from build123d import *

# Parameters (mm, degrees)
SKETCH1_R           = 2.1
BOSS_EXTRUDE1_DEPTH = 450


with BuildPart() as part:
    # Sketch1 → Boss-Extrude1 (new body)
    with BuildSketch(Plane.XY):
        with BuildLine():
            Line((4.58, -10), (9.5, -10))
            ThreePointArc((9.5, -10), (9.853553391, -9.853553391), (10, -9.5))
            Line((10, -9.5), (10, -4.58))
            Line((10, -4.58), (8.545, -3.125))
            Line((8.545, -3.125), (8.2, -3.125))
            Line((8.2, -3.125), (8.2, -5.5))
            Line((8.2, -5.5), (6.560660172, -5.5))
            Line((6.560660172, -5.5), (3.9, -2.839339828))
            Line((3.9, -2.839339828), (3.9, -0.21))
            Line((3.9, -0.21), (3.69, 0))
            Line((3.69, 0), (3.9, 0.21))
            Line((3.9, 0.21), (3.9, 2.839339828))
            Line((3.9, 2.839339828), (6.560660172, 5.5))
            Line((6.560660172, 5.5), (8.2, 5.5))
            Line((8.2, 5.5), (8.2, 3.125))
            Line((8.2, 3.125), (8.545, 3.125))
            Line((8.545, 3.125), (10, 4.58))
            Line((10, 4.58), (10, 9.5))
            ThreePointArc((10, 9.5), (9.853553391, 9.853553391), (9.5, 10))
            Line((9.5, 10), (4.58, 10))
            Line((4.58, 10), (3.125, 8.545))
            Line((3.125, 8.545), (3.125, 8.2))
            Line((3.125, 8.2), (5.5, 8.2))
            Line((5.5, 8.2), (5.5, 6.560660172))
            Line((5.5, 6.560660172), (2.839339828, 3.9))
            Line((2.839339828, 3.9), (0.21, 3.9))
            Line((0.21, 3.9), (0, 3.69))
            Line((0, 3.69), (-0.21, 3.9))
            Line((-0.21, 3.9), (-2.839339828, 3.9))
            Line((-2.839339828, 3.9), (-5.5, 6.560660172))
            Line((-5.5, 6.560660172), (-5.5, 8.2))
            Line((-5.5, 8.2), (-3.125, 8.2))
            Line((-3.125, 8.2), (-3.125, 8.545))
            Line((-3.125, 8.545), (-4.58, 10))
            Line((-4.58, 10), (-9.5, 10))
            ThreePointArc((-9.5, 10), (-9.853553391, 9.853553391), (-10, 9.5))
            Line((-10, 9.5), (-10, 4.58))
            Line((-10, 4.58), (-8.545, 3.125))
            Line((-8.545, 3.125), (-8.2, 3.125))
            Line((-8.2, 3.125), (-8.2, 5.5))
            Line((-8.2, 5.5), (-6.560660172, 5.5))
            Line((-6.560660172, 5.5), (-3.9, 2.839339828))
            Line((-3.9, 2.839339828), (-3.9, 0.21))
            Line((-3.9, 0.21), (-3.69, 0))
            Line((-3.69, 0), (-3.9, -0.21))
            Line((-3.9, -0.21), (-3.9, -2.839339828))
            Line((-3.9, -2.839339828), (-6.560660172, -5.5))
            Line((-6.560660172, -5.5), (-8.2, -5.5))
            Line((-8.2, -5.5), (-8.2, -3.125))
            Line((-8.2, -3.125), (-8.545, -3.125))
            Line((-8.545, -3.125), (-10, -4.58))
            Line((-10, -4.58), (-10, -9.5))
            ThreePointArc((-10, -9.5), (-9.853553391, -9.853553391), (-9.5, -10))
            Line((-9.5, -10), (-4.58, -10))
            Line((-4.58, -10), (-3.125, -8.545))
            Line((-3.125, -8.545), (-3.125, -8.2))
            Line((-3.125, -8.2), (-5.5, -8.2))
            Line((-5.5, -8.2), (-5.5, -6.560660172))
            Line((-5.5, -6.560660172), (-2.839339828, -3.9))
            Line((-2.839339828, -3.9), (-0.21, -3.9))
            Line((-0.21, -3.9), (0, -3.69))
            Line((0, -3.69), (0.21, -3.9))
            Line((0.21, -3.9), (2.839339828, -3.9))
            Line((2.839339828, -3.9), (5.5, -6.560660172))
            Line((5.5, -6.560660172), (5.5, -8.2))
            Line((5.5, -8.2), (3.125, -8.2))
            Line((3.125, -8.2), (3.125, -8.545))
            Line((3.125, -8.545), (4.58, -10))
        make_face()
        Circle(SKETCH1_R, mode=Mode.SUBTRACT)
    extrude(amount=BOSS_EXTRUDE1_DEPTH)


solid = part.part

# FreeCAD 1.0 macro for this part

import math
import FreeCAD as App
import Part
import Sketcher

V = App.Vector
Q = App.Units.Quantity

doc = App.newDocument("Part")
body = doc.addObject("PartDesign::Body", "Body")

# Sketch on XY plane
sketch1 = body.newObject("Sketcher::SketchObject", "Sketch")
sketch1.AttachmentSupport = (doc.getObject("XY_Plane"), [""])
sketch1.MapMode = "FlatFace"
sketch1.addGeometry(Part.LineSegment(V(4.58, -10, 0), V(9.5, -10, 0)), False)
sketch1.addGeometry(Part.ArcOfCircle(Part.Circle(V(9.5, -9.5, 0), V(0, 0, 1), 0.5), math.radians(-90), math.radians(0)), False)
sketch1.addGeometry(Part.LineSegment(V(10, -9.5, 0), V(10, -4.58, 0)), False)
sketch1.addGeometry(Part.LineSegment(V(10, -4.58, 0), V(8.54, -3.12, 0)), False)
sketch1.addGeometry(Part.LineSegment(V(8.54, -3.12, 0), V(8.2, -3.12, 0)), False)
sketch1.addGeometry(Part.LineSegment(V(8.2, -3.12, 0), V(8.2, -5.5, 0)), False)
sketch1.addGeometry(Part.LineSegment(V(8.2, -5.5, 0), V(6.56, -5.5, 0)), False)
sketch1.addGeometry(Part.LineSegment(V(6.56, -5.5, 0), V(3.9, -2.84, 0)), False)
sketch1.addGeometry(Part.LineSegment(V(3.9, -2.84, 0), V(3.9, -0.21, 0)), False)
sketch1.addGeometry(Part.LineSegment(V(3.9, -0.21, 0), V(3.69, 0, 0)), False)
sketch1.addGeometry(Part.LineSegment(V(3.69, 0, 0), V(3.9, 0.21, 0)), False)
sketch1.addGeometry(Part.LineSegment(V(3.9, 0.21, 0), V(3.9, 2.84, 0)), False)
sketch1.addGeometry(Part.LineSegment(V(3.9, 2.84, 0), V(6.56, 5.5, 0)), False)
sketch1.addGeometry(Part.LineSegment(V(6.56, 5.5, 0), V(8.2, 5.5, 0)), False)
sketch1.addGeometry(Part.LineSegment(V(8.2, 5.5, 0), V(8.2, 3.12, 0)), False)
sketch1.addGeometry(Part.LineSegment(V(8.2, 3.12, 0), V(8.54, 3.12, 0)), False)
sketch1.addGeometry(Part.LineSegment(V(8.54, 3.12, 0), V(10, 4.58, 0)), False)
sketch1.addGeometry(Part.LineSegment(V(10, 4.58, 0), V(10, 9.5, 0)), False)
sketch1.addGeometry(Part.ArcOfCircle(Part.Circle(V(9.5, 9.5, 0), V(0, 0, 1), 0.5), math.radians(0), math.radians(90)), False)
sketch1.addGeometry(Part.LineSegment(V(9.5, 10, 0), V(4.58, 10, 0)), False)
sketch1.addGeometry(Part.LineSegment(V(4.58, 10, 0), V(3.12, 8.54, 0)), False)
sketch1.addGeometry(Part.LineSegment(V(3.12, 8.54, 0), V(3.12, 8.2, 0)), False)
sketch1.addGeometry(Part.LineSegment(V(3.12, 8.2, 0), V(5.5, 8.2, 0)), False)
sketch1.addGeometry(Part.LineSegment(V(5.5, 8.2, 0), V(5.5, 6.56, 0)), False)
sketch1.addGeometry(Part.LineSegment(V(5.5, 6.56, 0), V(2.84, 3.9, 0)), False)
sketch1.addGeometry(Part.LineSegment(V(2.84, 3.9, 0), V(0.21, 3.9, 0)), False)
sketch1.addGeometry(Part.LineSegment(V(0.21, 3.9, 0), V(0, 3.69, 0)), False)
sketch1.addGeometry(Part.LineSegment(V(0, 3.69, 0), V(-0.21, 3.9, 0)), False)
sketch1.addGeometry(Part.LineSegment(V(-0.21, 3.9, 0), V(-2.84, 3.9, 0)), False)
sketch1.addGeometry(Part.LineSegment(V(-2.84, 3.9, 0), V(-5.5, 6.56, 0)), False)
sketch1.addGeometry(Part.LineSegment(V(-5.5, 6.56, 0), V(-5.5, 8.2, 0)), False)
sketch1.addGeometry(Part.LineSegment(V(-5.5, 8.2, 0), V(-3.12, 8.2, 0)), False)
sketch1.addGeometry(Part.LineSegment(V(-3.12, 8.2, 0), V(-3.12, 8.54, 0)), False)
sketch1.addGeometry(Part.LineSegment(V(-3.12, 8.54, 0), V(-4.58, 10, 0)), False)
sketch1.addGeometry(Part.LineSegment(V(-4.58, 10, 0), V(-9.5, 10, 0)), False)
sketch1.addGeometry(Part.ArcOfCircle(Part.Circle(V(-9.5, 9.5, 0), V(0, 0, 1), 0.5), math.radians(90), math.radians(180)), False)
sketch1.addGeometry(Part.LineSegment(V(-10, 9.5, 0), V(-10, 4.58, 0)), False)
sketch1.addGeometry(Part.LineSegment(V(-10, 4.58, 0), V(-8.54, 3.12, 0)), False)
sketch1.addGeometry(Part.LineSegment(V(-8.54, 3.12, 0), V(-8.2, 3.12, 0)), False)
sketch1.addGeometry(Part.LineSegment(V(-8.2, 3.12, 0), V(-8.2, 5.5, 0)), False)
sketch1.addGeometry(Part.LineSegment(V(-8.2, 5.5, 0), V(-6.56, 5.5, 0)), False)
sketch1.addGeometry(Part.LineSegment(V(-6.56, 5.5, 0), V(-3.9, 2.84, 0)), False)
sketch1.addGeometry(Part.LineSegment(V(-3.9, 2.84, 0), V(-3.9, 0.21, 0)), False)
sketch1.addGeometry(Part.LineSegment(V(-3.9, 0.21, 0), V(-3.69, 0, 0)), False)
sketch1.addGeometry(Part.LineSegment(V(-3.69, 0, 0), V(-3.9, -0.21, 0)), False)
sketch1.addGeometry(Part.LineSegment(V(-3.9, -0.21, 0), V(-3.9, -2.84, 0)), False)
sketch1.addGeometry(Part.LineSegment(V(-3.9, -2.84, 0), V(-6.56, -5.5, 0)), False)
sketch1.addGeometry(Part.LineSegment(V(-6.56, -5.5, 0), V(-8.2, -5.5, 0)), False)
sketch1.addGeometry(Part.LineSegment(V(-8.2, -5.5, 0), V(-8.2, -3.12, 0)), False)
sketch1.addGeometry(Part.LineSegment(V(-8.2, -3.12, 0), V(-8.54, -3.12, 0)), False)
sketch1.addGeometry(Part.LineSegment(V(-8.54, -3.12, 0), V(-10, -4.58, 0)), False)
sketch1.addGeometry(Part.LineSegment(V(-10, -4.58, 0), V(-10, -9.5, 0)), False)
sketch1.addGeometry(Part.ArcOfCircle(Part.Circle(V(-9.5, -9.5, 0), V(0, 0, 1), 0.5), math.radians(180), math.radians(270)), False)
sketch1.addGeometry(Part.LineSegment(V(-9.5, -10, 0), V(-4.58, -10, 0)), False)
sketch1.addGeometry(Part.LineSegment(V(-4.58, -10, 0), V(-3.12, -8.54, 0)), False)
sketch1.addGeometry(Part.LineSegment(V(-3.12, -8.54, 0), V(-3.12, -8.2, 0)), False)
sketch1.addGeometry(Part.LineSegment(V(-3.12, -8.2, 0), V(-5.5, -8.2, 0)), False)
sketch1.addGeometry(Part.LineSegment(V(-5.5, -8.2, 0), V(-5.5, -6.56, 0)), False)
sketch1.addGeometry(Part.LineSegment(V(-5.5, -6.56, 0), V(-2.84, -3.9, 0)), False)
sketch1.addGeometry(Part.LineSegment(V(-2.84, -3.9, 0), V(-0.21, -3.9, 0)), False)
sketch1.addGeometry(Part.LineSegment(V(-0.21, -3.9, 0), V(0, -3.69, 0)), False)
sketch1.addGeometry(Part.LineSegment(V(0, -3.69, 0), V(0.21, -3.9, 0)), False)
sketch1.addGeometry(Part.LineSegment(V(0.21, -3.9, 0), V(2.84, -3.9, 0)), False)
sketch1.addGeometry(Part.LineSegment(V(2.84, -3.9, 0), V(5.5, -6.56, 0)), False)
sketch1.addGeometry(Part.LineSegment(V(5.5, -6.56, 0), V(5.5, -8.2, 0)), False)
sketch1.addGeometry(Part.LineSegment(V(5.5, -8.2, 0), V(3.12, -8.2, 0)), False)
sketch1.addGeometry(Part.LineSegment(V(3.12, -8.2, 0), V(3.12, -8.54, 0)), False)
sketch1.addGeometry(Part.LineSegment(V(3.12, -8.54, 0), V(4.58, -10, 0)), False)
sketch1.addGeometry(Part.Circle(V(0, 0, 0), V(0, 0, 1), 2.1), False)
sketch1.addConstraint(Sketcher.Constraint("Tangent", 0, 2, 1, 1))
sketch1.addConstraint(Sketcher.Constraint("Tangent", 1, 2, 2, 1))
sketch1.addConstraint(Sketcher.Constraint("Coincident", 2, 2, 3, 1))
sketch1.addConstraint(Sketcher.Constraint("Coincident", 3, 2, 4, 1))
sketch1.addConstraint(Sketcher.Constraint("Coincident", 4, 2, 5, 1))
sketch1.addConstraint(Sketcher.Constraint("Coincident", 5, 2, 6, 1))
sketch1.addConstraint(Sketcher.Constraint("Coincident", 6, 2, 7, 1))
sketch1.addConstraint(Sketcher.Constraint("Coincident", 7, 2, 8, 1))
sketch1.addConstraint(Sketcher.Constraint("Coincident", 8, 2, 9, 1))
sketch1.addConstraint(Sketcher.Constraint("Coincident", 9, 2, 10, 1))
sketch1.addConstraint(Sketcher.Constraint("Coincident", 10, 2, 11, 1))
sketch1.addConstraint(Sketcher.Constraint("Coincident", 11, 2, 12, 1))
sketch1.addConstraint(Sketcher.Constraint("Coincident", 12, 2, 13, 1))
sketch1.addConstraint(Sketcher.Constraint("Coincident", 13, 2, 14, 1))
sketch1.addConstraint(Sketcher.Constraint("Coincident", 14, 2, 15, 1))
sketch1.addConstraint(Sketcher.Constraint("Coincident", 15, 2, 16, 1))
sketch1.addConstraint(Sketcher.Constraint("Coincident", 16, 2, 17, 1))
sketch1.addConstraint(Sketcher.Constraint("Tangent", 17, 2, 18, 1))
sketch1.addConstraint(Sketcher.Constraint("Tangent", 18, 2, 19, 1))
sketch1.addConstraint(Sketcher.Constraint("Coincident", 19, 2, 20, 1))
sketch1.addConstraint(Sketcher.Constraint("Coincident", 20, 2, 21, 1))
sketch1.addConstraint(Sketcher.Constraint("Coincident", 21, 2, 22, 1))
sketch1.addConstraint(Sketcher.Constraint("Coincident", 22, 2, 23, 1))
sketch1.addConstraint(Sketcher.Constraint("Coincident", 23, 2, 24, 1))
sketch1.addConstraint(Sketcher.Constraint("Coincident", 24, 2, 25, 1))
sketch1.addConstraint(Sketcher.Constraint("Coincident", 25, 2, 26, 1))
sketch1.addConstraint(Sketcher.Constraint("Coincident", 26, 2, 27, 1))
sketch1.addConstraint(Sketcher.Constraint("Coincident", 27, 2, 28, 1))
sketch1.addConstraint(Sketcher.Constraint("Coincident", 28, 2, 29, 1))
sketch1.addConstraint(Sketcher.Constraint("Coincident", 29, 2, 30, 1))
sketch1.addConstraint(Sketcher.Constraint("Coincident", 30, 2, 31, 1))
sketch1.addConstraint(Sketcher.Constraint("Coincident", 31, 2, 32, 1))
sketch1.addConstraint(Sketcher.Constraint("Coincident", 32, 2, 33, 1))
sketch1.addConstraint(Sketcher.Constraint("Coincident", 33, 2, 34, 1))
sketch1.addConstraint(Sketcher.Constraint("Tangent", 34, 2, 35, 1))
sketch1.addConstraint(Sketcher.Constraint("Tangent", 35, 2, 36, 1))
sketch1.addConstraint(Sketcher.Constraint("Coincident", 36, 2, 37, 1))
sketch1.addConstraint(Sketcher.Constraint("Coincident", 37, 2, 38, 1))
sketch1.addConstraint(Sketcher.Constraint("Coincident", 38, 2, 39, 1))
sketch1.addConstraint(Sketcher.Constraint("Coincident", 39, 2, 40, 1))
sketch1.addConstraint(Sketcher.Constraint("Coincident", 40, 2, 41, 1))
sketch1.addConstraint(Sketcher.Constraint("Coincident", 41, 2, 42, 1))
sketch1.addConstraint(Sketcher.Constraint("Coincident", 42, 2, 43, 1))
sketch1.addConstraint(Sketcher.Constraint("Coincident", 43, 2, 44, 1))
sketch1.addConstraint(Sketcher.Constraint("Coincident", 44, 2, 45, 1))
sketch1.addConstraint(Sketcher.Constraint("Coincident", 45, 2, 46, 1))
sketch1.addConstraint(Sketcher.Constraint("Coincident", 46, 2, 47, 1))
sketch1.addConstraint(Sketcher.Constraint("Coincident", 47, 2, 48, 1))
sketch1.addConstraint(Sketcher.Constraint("Coincident", 48, 2, 49, 1))
sketch1.addConstraint(Sketcher.Constraint("Coincident", 49, 2, 50, 1))
sketch1.addConstraint(Sketcher.Constraint("Coincident", 50, 2, 51, 1))
sketch1.addConstraint(Sketcher.Constraint("Tangent", 51, 2, 52, 1))
sketch1.addConstraint(Sketcher.Constraint("Tangent", 52, 2, 53, 1))
sketch1.addConstraint(Sketcher.Constraint("Coincident", 53, 2, 54, 1))
sketch1.addConstraint(Sketcher.Constraint("Coincident", 54, 2, 55, 1))
sketch1.addConstraint(Sketcher.Constraint("Coincident", 55, 2, 56, 1))
sketch1.addConstraint(Sketcher.Constraint("Coincident", 56, 2, 57, 1))
sketch1.addConstraint(Sketcher.Constraint("Coincident", 57, 2, 58, 1))
sketch1.addConstraint(Sketcher.Constraint("Coincident", 58, 2, 59, 1))
sketch1.addConstraint(Sketcher.Constraint("Coincident", 59, 2, 60, 1))
sketch1.addConstraint(Sketcher.Constraint("Coincident", 60, 2, 61, 1))
sketch1.addConstraint(Sketcher.Constraint("Coincident", 61, 2, 62, 1))
sketch1.addConstraint(Sketcher.Constraint("Coincident", 62, 2, 63, 1))
sketch1.addConstraint(Sketcher.Constraint("Coincident", 63, 2, 64, 1))
sketch1.addConstraint(Sketcher.Constraint("Coincident", 64, 2, 65, 1))
sketch1.addConstraint(Sketcher.Constraint("Coincident", 65, 2, 66, 1))
sketch1.addConstraint(Sketcher.Constraint("Coincident", 66, 2, 67, 1))
sketch1.addConstraint(Sketcher.Constraint("Coincident", 67, 2, 0, 1))
sketch1.addConstraint(Sketcher.Constraint("Horizontal", 0))
sketch1.addConstraint(Sketcher.Constraint("Vertical", 2))
sketch1.addConstraint(Sketcher.Constraint("Horizontal", 4))
sketch1.addConstraint(Sketcher.Constraint("Vertical", 5))
sketch1.addConstraint(Sketcher.Constraint("Horizontal", 6))
sketch1.addConstraint(Sketcher.Constraint("Vertical", 8))
sketch1.addConstraint(Sketcher.Constraint("Vertical", 11))
sketch1.addConstraint(Sketcher.Constraint("Horizontal", 13))
sketch1.addConstraint(Sketcher.Constraint("Vertical", 14))
sketch1.addConstraint(Sketcher.Constraint("Horizontal", 15))
sketch1.addConstraint(Sketcher.Constraint("Vertical", 17))
sketch1.addConstraint(Sketcher.Constraint("Horizontal", 19))
sketch1.addConstraint(Sketcher.Constraint("Vertical", 21))
sketch1.addConstraint(Sketcher.Constraint("Horizontal", 22))
sketch1.addConstraint(Sketcher.Constraint("Vertical", 23))
sketch1.addConstraint(Sketcher.Constraint("Horizontal", 25))
sketch1.addConstraint(Sketcher.Constraint("Horizontal", 28))
sketch1.addConstraint(Sketcher.Constraint("Vertical", 30))
sketch1.addConstraint(Sketcher.Constraint("Horizontal", 31))
sketch1.addConstraint(Sketcher.Constraint("Vertical", 32))
sketch1.addConstraint(Sketcher.Constraint("Horizontal", 34))
sketch1.addConstraint(Sketcher.Constraint("Vertical", 36))
sketch1.addConstraint(Sketcher.Constraint("Horizontal", 38))
sketch1.addConstraint(Sketcher.Constraint("Vertical", 39))
sketch1.addConstraint(Sketcher.Constraint("Horizontal", 40))
sketch1.addConstraint(Sketcher.Constraint("Vertical", 42))
sketch1.addConstraint(Sketcher.Constraint("Vertical", 45))
sketch1.addConstraint(Sketcher.Constraint("Horizontal", 47))
sketch1.addConstraint(Sketcher.Constraint("Vertical", 48))
sketch1.addConstraint(Sketcher.Constraint("Horizontal", 49))
sketch1.addConstraint(Sketcher.Constraint("Vertical", 51))
sketch1.addConstraint(Sketcher.Constraint("Horizontal", 53))
sketch1.addConstraint(Sketcher.Constraint("Vertical", 55))
sketch1.addConstraint(Sketcher.Constraint("Horizontal", 56))
sketch1.addConstraint(Sketcher.Constraint("Vertical", 57))
sketch1.addConstraint(Sketcher.Constraint("Horizontal", 59))
sketch1.addConstraint(Sketcher.Constraint("Horizontal", 62))
sketch1.addConstraint(Sketcher.Constraint("Vertical", 64))
sketch1.addConstraint(Sketcher.Constraint("Horizontal", 65))
sketch1.addConstraint(Sketcher.Constraint("Vertical", 66))
sketch1.addConstraint(Sketcher.Constraint("Coincident", 68, 3, -1, 1))
sketch1.addConstraint(Sketcher.Constraint("Equal", 1, 18))
sketch1.addConstraint(Sketcher.Constraint("Equal", 18, 35))
sketch1.addConstraint(Sketcher.Constraint("Equal", 35, 52))
sketch1.addConstraint(Sketcher.Constraint("Symmetric", 1, 3, 35, 3, -1, 1))
sketch1.addConstraint(Sketcher.Constraint("Symmetric", 18, 3, 52, 3, -1, 1))
sketch1.addConstraint(Sketcher.Constraint("Symmetric", 3, 2, 37, 2, -1, 1))
sketch1.addConstraint(Sketcher.Constraint("Symmetric", 5, 2, 39, 2, -1, 1))
sketch1.addConstraint(Sketcher.Constraint("Symmetric", 7, 2, 41, 2, -1, 1))
sketch1.addConstraint(Sketcher.Constraint("Symmetric", 9, 2, 43, 2, -1, 1))
sketch1.addConstraint(Sketcher.Constraint("Symmetric", 10, 2, 44, 2, -1, 1))
sketch1.addConstraint(Sketcher.Constraint("Symmetric", 12, 2, 46, 2, -1, 1))
sketch1.addConstraint(Sketcher.Constraint("Symmetric", 14, 2, 48, 2, -1, 1))
sketch1.addConstraint(Sketcher.Constraint("Symmetric", 20, 2, 54, 2, -1, 1))
sketch1.addConstraint(Sketcher.Constraint("Symmetric", 22, 2, 56, 2, -1, 1))
sketch1.addConstraint(Sketcher.Constraint("Symmetric", 24, 2, 58, 2, -1, 1))
sketch1.addConstraint(Sketcher.Constraint("Symmetric", 26, 2, 60, 2, -1, 1))
sketch1.addConstraint(Sketcher.Constraint("Symmetric", 27, 2, 61, 2, -1, 1))
sketch1.addConstraint(Sketcher.Constraint("Symmetric", 29, 2, 63, 2, -1, 1))
sketch1.addConstraint(Sketcher.Constraint("Symmetric", 31, 2, 65, 2, -1, 1))
sketch1.addConstraint(Sketcher.Constraint("Symmetric", 18, 3, 35, 3, -2))
sketch1.addConstraint(Sketcher.Constraint("Symmetric", 25, 2, 27, 2, -2))
sketch1.addConstraint(Sketcher.Constraint("Symmetric", 23, 2, 29, 2, -2))
sketch1.addConstraint(Sketcher.Constraint("Symmetric", 21, 2, 31, 2, -2))
sketch1.addConstraint(Sketcher.Constraint("Symmetric", 15, 2, 37, 2, -2))
sketch1.addConstraint(Sketcher.Constraint("Symmetric", 13, 2, 39, 2, -2))
sketch1.addConstraint(Sketcher.Constraint("Symmetric", 11, 2, 41, 2, -2))
sketch1.addConstraint(Sketcher.Constraint("PointOnObject", 9, 2, -1))
sketch1.addConstraint(Sketcher.Constraint("PointOnObject", 26, 2, -2))
sketch1.addConstraint(Sketcher.Constraint("Parallel", 3, 7))
sketch1.addConstraint(Sketcher.Constraint("Parallel", 7, 9))
sketch1.addConstraint(Sketcher.Constraint("Perpendicular", 9, 10))
sketch1.addConstraint(Sketcher.Constraint("Parallel", 10, 12))
sketch1.addConstraint(Sketcher.Constraint("Parallel", 12, 16))
sketch1.addConstraint(Sketcher.Constraint("Parallel", 16, 20))
sketch1.addConstraint(Sketcher.Constraint("Parallel", 20, 24))
sketch1.addConstraint(Sketcher.Constraint("Parallel", 24, 26))
sketch1.addConstraint(Sketcher.Constraint("Perpendicular", 26, 27))
sketch1.addConstraint(Sketcher.Constraint("Parallel", 27, 29))
sketch1.addConstraint(Sketcher.Constraint("Parallel", 29, 33))
sketch1.addConstraint(Sketcher.Constraint("Parallel", 33, 37))
sketch1.addConstraint(Sketcher.Constraint("Parallel", 37, 41))
sketch1.addConstraint(Sketcher.Constraint("Parallel", 41, 43))
sketch1.addConstraint(Sketcher.Constraint("Parallel", 44, 46))
sketch1.addConstraint(Sketcher.Constraint("Parallel", 46, 50))
sketch1.addConstraint(Sketcher.Constraint("Parallel", 50, 54))
sketch1.addConstraint(Sketcher.Constraint("Parallel", 54, 58))
sketch1.addConstraint(Sketcher.Constraint("Parallel", 58, 60))
sketch1.addConstraint(Sketcher.Constraint("Parallel", 61, 63))
sketch1.addConstraint(Sketcher.Constraint("Parallel", 63, 67))
sketch1.addConstraint(Sketcher.Constraint("Horizontal", 20, 2, 32, 2))
sketch1.addConstraint(Sketcher.Constraint("Horizontal", 2, 2, 50, 2))
sketch1.addConstraint(Sketcher.Constraint("Horizontal", 54, 2, 66, 2))
sketch1.addConstraint(Sketcher.Constraint("Equal", 53, 2))
sketch1.addConstraint(Sketcher.Constraint("Equal", 65, 5))
sketch1.addConstraint(Sketcher.Constraint("Equal", 62, 8))
sketch1.addConstraint(Sketcher.Constraint("Equal", 49, 21))
sketch1.addConstraint(Sketcher.Constraint("Equal", 47, 23))
sketch1.addConstraint(Sketcher.Constraint("Equal", 16, 20))
sketch1.addConstraint(Sketcher.Constraint("Equal", 12, 24))
sketch1.addConstraint(Sketcher.Constraint("Equal", 10, 26))
sketch1.addConstraint(Sketcher.Constraint("Diameter", 68, Q("4.2 mm")))
sketch1.addConstraint(Sketcher.Constraint("Radius", 1, Q("0.5 mm")))
sketch1.addConstraint(Sketcher.Constraint("DistanceY", 0, 2, -1, 1, Q("10 mm")))
sketch1.addConstraint(Sketcher.Constraint("DistanceX", 0, 1, 0, 2, Q("4.92 mm")))
sketch1.addConstraint(Sketcher.Constraint("DistanceX", -1, 1, 4, 2, Q("8.2 mm")))
sketch1.addConstraint(Sketcher.Constraint("DistanceY", 5, 2, -1, 1, Q("5.5 mm")))
sketch1.addConstraint(Sketcher.Constraint("DistanceX", -1, 1, 7, 2, Q("3.9 mm")))
sketch1.addConstraint(Sketcher.Constraint("DistanceX", 4, 2, 4, 1, Q("0.345 mm")))
sketch1.addConstraint(Sketcher.Constraint("DistanceY", 8, 2, -1, 1, Q("0.21 mm")))
sketch1.addConstraint(Sketcher.Constraint("DistanceX", 6, 2, 6, 1, Q("1.63934 mm")))
pad1 = body.newObject("PartDesign::Pad", "Pad")
pad1.Profile = sketch1
pad1.Length = 450

doc.recompute()
